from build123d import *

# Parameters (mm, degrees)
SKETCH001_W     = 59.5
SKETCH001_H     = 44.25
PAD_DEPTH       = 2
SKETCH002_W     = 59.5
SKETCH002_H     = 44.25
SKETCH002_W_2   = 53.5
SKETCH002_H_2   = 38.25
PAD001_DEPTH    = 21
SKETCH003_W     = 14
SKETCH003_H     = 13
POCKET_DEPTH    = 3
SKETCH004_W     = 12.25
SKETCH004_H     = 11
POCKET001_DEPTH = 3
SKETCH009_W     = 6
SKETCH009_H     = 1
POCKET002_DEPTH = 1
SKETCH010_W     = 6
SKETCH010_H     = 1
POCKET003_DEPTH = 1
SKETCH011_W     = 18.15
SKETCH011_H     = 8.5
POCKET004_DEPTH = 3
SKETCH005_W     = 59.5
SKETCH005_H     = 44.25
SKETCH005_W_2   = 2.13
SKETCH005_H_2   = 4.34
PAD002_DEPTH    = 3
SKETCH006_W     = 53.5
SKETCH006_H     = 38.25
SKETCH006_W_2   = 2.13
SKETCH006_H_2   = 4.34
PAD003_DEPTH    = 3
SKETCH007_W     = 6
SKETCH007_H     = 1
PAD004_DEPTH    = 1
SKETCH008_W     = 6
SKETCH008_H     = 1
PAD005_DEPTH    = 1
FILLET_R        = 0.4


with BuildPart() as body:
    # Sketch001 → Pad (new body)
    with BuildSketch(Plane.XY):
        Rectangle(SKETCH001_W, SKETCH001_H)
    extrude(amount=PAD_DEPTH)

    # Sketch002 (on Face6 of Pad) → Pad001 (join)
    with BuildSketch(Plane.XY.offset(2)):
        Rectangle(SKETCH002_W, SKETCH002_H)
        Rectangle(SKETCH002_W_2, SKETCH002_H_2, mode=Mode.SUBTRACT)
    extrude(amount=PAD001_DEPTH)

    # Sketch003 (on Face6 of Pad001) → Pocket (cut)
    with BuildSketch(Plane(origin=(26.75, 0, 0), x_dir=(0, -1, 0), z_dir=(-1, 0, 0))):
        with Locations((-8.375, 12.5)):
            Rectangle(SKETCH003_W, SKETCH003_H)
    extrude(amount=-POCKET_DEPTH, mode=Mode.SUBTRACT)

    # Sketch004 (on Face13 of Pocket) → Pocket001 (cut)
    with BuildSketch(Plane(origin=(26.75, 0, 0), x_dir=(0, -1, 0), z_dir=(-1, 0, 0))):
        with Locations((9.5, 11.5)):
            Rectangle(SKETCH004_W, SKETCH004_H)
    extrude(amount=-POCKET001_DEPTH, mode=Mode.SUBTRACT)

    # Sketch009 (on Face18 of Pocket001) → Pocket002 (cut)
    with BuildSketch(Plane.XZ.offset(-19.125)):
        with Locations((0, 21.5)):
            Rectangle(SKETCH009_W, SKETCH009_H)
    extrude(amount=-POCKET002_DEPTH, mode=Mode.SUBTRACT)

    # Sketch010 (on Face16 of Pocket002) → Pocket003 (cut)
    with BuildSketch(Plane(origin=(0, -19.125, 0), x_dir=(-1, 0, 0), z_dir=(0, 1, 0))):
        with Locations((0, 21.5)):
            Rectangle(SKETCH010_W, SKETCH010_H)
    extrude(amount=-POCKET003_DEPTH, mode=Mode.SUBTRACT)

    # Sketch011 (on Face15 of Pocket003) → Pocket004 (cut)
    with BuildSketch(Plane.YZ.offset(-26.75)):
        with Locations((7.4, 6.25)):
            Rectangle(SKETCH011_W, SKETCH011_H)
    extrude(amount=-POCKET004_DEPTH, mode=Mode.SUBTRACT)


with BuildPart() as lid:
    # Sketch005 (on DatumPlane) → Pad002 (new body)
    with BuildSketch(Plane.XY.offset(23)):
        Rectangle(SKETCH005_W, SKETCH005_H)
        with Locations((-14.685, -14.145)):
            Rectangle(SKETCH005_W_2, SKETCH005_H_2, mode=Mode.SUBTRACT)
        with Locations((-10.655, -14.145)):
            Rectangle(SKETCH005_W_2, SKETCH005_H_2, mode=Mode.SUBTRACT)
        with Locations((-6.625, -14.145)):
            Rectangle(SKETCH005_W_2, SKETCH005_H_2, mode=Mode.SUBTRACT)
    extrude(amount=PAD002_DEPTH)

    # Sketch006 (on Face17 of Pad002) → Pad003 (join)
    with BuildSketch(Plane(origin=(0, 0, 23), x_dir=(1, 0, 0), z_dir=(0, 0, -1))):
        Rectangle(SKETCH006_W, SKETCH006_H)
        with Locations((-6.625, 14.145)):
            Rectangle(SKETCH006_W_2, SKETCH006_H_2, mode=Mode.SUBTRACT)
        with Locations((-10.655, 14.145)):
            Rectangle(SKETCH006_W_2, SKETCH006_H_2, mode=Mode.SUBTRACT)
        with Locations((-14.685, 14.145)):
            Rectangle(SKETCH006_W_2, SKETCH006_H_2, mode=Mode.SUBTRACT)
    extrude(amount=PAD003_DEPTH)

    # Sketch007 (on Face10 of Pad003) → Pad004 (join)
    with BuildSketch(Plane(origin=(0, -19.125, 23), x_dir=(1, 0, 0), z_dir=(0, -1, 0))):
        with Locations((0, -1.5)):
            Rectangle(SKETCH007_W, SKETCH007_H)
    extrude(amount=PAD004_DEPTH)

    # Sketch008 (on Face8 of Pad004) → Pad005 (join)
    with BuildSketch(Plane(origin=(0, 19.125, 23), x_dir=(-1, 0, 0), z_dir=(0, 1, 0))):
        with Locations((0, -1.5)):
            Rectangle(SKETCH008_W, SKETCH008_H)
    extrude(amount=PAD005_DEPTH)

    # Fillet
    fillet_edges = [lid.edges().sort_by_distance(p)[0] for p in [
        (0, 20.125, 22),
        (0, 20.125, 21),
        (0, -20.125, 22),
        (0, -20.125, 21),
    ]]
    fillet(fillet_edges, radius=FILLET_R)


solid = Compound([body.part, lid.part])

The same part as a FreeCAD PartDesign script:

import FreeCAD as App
import Part
import Sketcher
Q = App.Units.Quantity


def edges_at(feature, points):
    """Names of the edges that pass closest to the given points."""
    edges = feature.Shape.Edges
    near = lambda p: min(range(len(edges)), key=lambda i: edges[i].distToShape(Part.Vertex(*p))[0])
    return sorted({f"Edge{near(p) + 1}" for p in points})


def add_polygon(sketch, points):
    """Adds a closed chain of lines whose ends are joined by coincident constraints."""
    first, n = sketch.GeometryCount, len(points)
    for a, b in zip(points, points[1:] + points[:1]):
        sketch.addGeometry(Part.LineSegment(App.Vector(*a, 0), App.Vector(*b, 0)), False)
    for i in range(n):
        sketch.addConstraint(Sketcher.Constraint("Coincident", first + i, 2, first + (i + 1) % n, 1))

doc = App.newDocument("Part")
body = doc.addObject("PartDesign::Body", "Body")

# Sketch on XY plane
sketch1 = doc.addObject("Sketcher::SketchObject", "Sketch")
body.addObject(sketch1)
sketch1.AttachmentSupport = (doc.XY_Plane, [""])
sketch1.MapMode = "FlatFace"
add_polygon(sketch1, [(-30, 22), (-30, -22), (30, -22), (30, 22)])  # lines 0-3
sketch1.addConstraint([
    Sketcher.Constraint("Vertical", 0),
    Sketcher.Constraint("Horizontal", 1),
    Sketcher.Constraint("Vertical", 2),
    Sketcher.Constraint("Horizontal", 3),
    Sketcher.Constraint("Symmetric", 0, 2, 2, 2, -1, 1),
    Sketcher.Constraint("DistanceX", 1, 1, 1, 2, Q("59.5 mm")),
    Sketcher.Constraint("DistanceY", 0, 2, 0, 1, Q("44.25 mm")),
])
pad1 = doc.addObject("PartDesign::Pad", "Pad")
body.addObject(pad1)
pad1.Profile = sketch1
pad1.Length = 2

# Sketch on XY plane
sketch2 = doc.addObject("Sketcher::SketchObject", "Sketch001")
body.addObject(sketch2)
sketch2.AttachmentSupport = (doc.XY_Plane, [""])
sketch2.MapMode = "FlatFace"
sketch2.AttachmentOffset = App.Placement(App.Vector(0, 0, 2), App.Rotation())
add_polygon(sketch2, [(-30, 22), (-30, -22), (30, -22), (30, 22)])  # lines 0-3
add_polygon(sketch2, [(27, -19), (-27, -19), (-27, 19), (27, 19)])  # lines 4-7
sketch2.addConstraint([
    Sketcher.Constraint("Vertical", 0),
    Sketcher.Constraint("Horizontal", 1),
    Sketcher.Constraint("Vertical", 2),
    Sketcher.Constraint("Horizontal", 3),
    Sketcher.Constraint("Horizontal", 4),
    Sketcher.Constraint("Vertical", 5),
    Sketcher.Constraint("Horizontal", 6),
    Sketcher.Constraint("Vertical", 7),
    Sketcher.Constraint("Symmetric", 0, 2, 2, 2, -1, 1),
    Sketcher.Constraint("Symmetric", 4, 2, 6, 2, -1, 1),
    Sketcher.Constraint("DistanceX", 1, 1, 1, 2, Q("59.5 mm")),
    Sketcher.Constraint("DistanceX", 4, 2, 4, 1, Q("53.5 mm")),
    Sketcher.Constraint("DistanceY", 0, 2, 4, 2, Q("3 mm")),
    Sketcher.Constraint("DistanceY", 0, 2, 0, 1, Q("44.25 mm")),
])
pad2 = doc.addObject("PartDesign::Pad", "Pad001")
body.addObject(pad2)
pad2.Profile = sketch2
pad2.Length = 21

# Sketch on YZ plane
sketch3 = doc.addObject("Sketcher::SketchObject", "Sketch002")
body.addObject(sketch3)
sketch3.AttachmentSupport = (doc.YZ_Plane, [""])
sketch3.MapMode = "FlatFace"
sketch3.AttachmentOffset = App.Placement(App.Vector(0, 0, 26.75), App.Rotation())
add_polygon(sketch3, [(15, 19), (15, 6), (1, 6), (1, 19)])  # lines 0-3
sketch3.addConstraint([
    Sketcher.Constraint("Vertical", 0),
    Sketcher.Constraint("Horizontal", 1),
    Sketcher.Constraint("Vertical", 2),
    Sketcher.Constraint("Horizontal", 3),
    Sketcher.Constraint("DistanceX", 1, 2, 1, 1, Q("14 mm")),
    Sketcher.Constraint("DistanceY", 0, 2, 0, 1, Q("13 mm")),
    Sketcher.Constraint("DistanceY", -1, 1, 0, 2, Q("6 mm")),
    Sketcher.Constraint("DistanceX", -1, 1, 0, 2, Q("15.375 mm")),
])
pocket1 = doc.addObject("PartDesign::Pocket", "Pocket")
body.addObject(pocket1)
pocket1.Profile = sketch3
pocket1.Length = 3
pocket1.Reversed = True

# Sketch on YZ plane
sketch4 = doc.addObject("Sketcher::SketchObject", "Sketch003")
body.addObject(sketch4)
sketch4.AttachmentSupport = (doc.YZ_Plane, [""])
sketch4.MapMode = "FlatFace"
sketch4.AttachmentOffset = App.Placement(App.Vector(0, 0, 26.75), App.Rotation())
add_polygon(sketch4, [(-3, 17), (-3, 6), (-16, 6), (-16, 17)])  # lines 0-3
sketch4.addConstraint([
    Sketcher.Constraint("Vertical", 0),
    Sketcher.Constraint("Horizontal", 1),
    Sketcher.Constraint("Vertical", 2),
    Sketcher.Constraint("Horizontal", 3),
    Sketcher.Constraint("DistanceY", 0, 2, 0, 1, Q("11 mm")),
    Sketcher.Constraint("DistanceY", -1, 1, 0, 2, Q("6 mm")),
    Sketcher.Constraint("DistanceX", 1, 2, 1, 1, Q("12.25 mm")),
    Sketcher.Constraint("DistanceX", 0, 2, -1, 1, Q("3.375 mm")),
])
pocket2 = doc.addObject("PartDesign::Pocket", "Pocket001")
body.addObject(pocket2)
pocket2.Profile = sketch4
pocket2.Length = 3
pocket2.Reversed = True

# Sketch on XZ plane
sketch5 = doc.addObject("Sketcher::SketchObject", "Sketch004")
body.addObject(sketch5)
sketch5.AttachmentSupport = (doc.XZ_Plane, [""])
sketch5.MapMode = "FlatFace"
sketch5.AttachmentOffset = App.Placement(App.Vector(0, 0, -19.125), App.Rotation())
add_polygon(sketch5, [(-3, 22), (-3, 21), (3, 21), (3, 22)])  # lines 0-3
sketch5.addConstraint([
    Sketcher.Constraint("Vertical", 0),
    Sketcher.Constraint("Horizontal", 1),
    Sketcher.Constraint("Vertical", 2),
    Sketcher.Constraint("Horizontal", 3),
    Sketcher.Constraint("DistanceX", 1, 1, 1, 2, Q("6 mm")),
    Sketcher.Constraint("DistanceY", 0, 2, 0, 1, Q("1 mm")),
    Sketcher.Constraint("DistanceX", 0, 2, -1, 1, Q("3 mm")),
    Sketcher.Constraint("DistanceY", -1, 1, 0, 2, Q("21 mm")),
])
pocket3 = doc.addObject("PartDesign::Pocket", "Pocket002")
body.addObject(pocket3)
pocket3.Profile = sketch5
pocket3.Length = 1

# Sketch on XZ plane
sketch6 = doc.addObject("Sketcher::SketchObject", "Sketch005")
body.addObject(sketch6)
sketch6.AttachmentSupport = (doc.XZ_Plane, [""])
sketch6.MapMode = "FlatFace"
sketch6.AttachmentOffset = App.Placement(App.Vector(0, 0, 19.125), App.Rotation())
add_polygon(sketch6, [(3, 22), (3, 21), (-3, 21), (-3, 22)])  # lines 0-3
sketch6.addConstraint([
    Sketcher.Constraint("Vertical", 0),
    Sketcher.Constraint("Horizontal", 1),
    Sketcher.Constraint("Vertical", 2),
    Sketcher.Constraint("Horizontal", 3),
    Sketcher.Constraint("DistanceX", 1, 2, 1, 1, Q("6 mm")),
    Sketcher.Constraint("DistanceY", 0, 2, 0, 1, Q("1 mm")),
    Sketcher.Constraint("DistanceX", -1, 1, 0, 2, Q("3 mm")),
    Sketcher.Constraint("DistanceY", -1, 1, 0, 2, Q("21 mm")),
])
pocket4 = doc.addObject("PartDesign::Pocket", "Pocket003")
body.addObject(pocket4)
pocket4.Profile = sketch6
pocket4.Length = 1
pocket4.Reversed = True

# Sketch on YZ plane
sketch7 = doc.addObject("Sketcher::SketchObject", "Sketch006")
body.addObject(sketch7)
sketch7.AttachmentSupport = (doc.YZ_Plane, [""])
sketch7.MapMode = "FlatFace"
sketch7.AttachmentOffset = App.Placement(App.Vector(0, 0, -26.75), App.Rotation())
add_polygon(sketch7, [(-2, 10), (-2, 2), (16, 2), (16, 10)])  # lines 0-3
sketch7.addConstraint([
    Sketcher.Constraint("Vertical", 0),
    Sketcher.Constraint("Horizontal", 1),
    Sketcher.Constraint("Vertical", 2),
    Sketcher.Constraint("Horizontal", 3),
    Sketcher.Constraint("DistanceY", 0, 2, 0, 1, Q("8.5 mm")),
    Sketcher.Constraint("DistanceY", -1, 1, 0, 2, Q("2 mm")),
    Sketcher.Constraint("DistanceX", 1, 1, 1, 2, Q("18.15 mm")),
    Sketcher.Constraint("DistanceX", 0, 2, -1, 1, Q("1.675 mm")),
])
pocket5 = doc.addObject("PartDesign::Pocket", "Pocket004")
body.addObject(pocket5)
pocket5.Profile = sketch7
pocket5.Length = 3
body2 = doc.addObject("PartDesign::Body", "Body001")

# Sketch on XY plane
sketch8 = doc.addObject("Sketcher::SketchObject", "Sketch007")
body2.addObject(sketch8)
sketch8.AttachmentSupport = (doc.getObject("XY_Plane001"), [""])
sketch8.MapMode = "FlatFace"
sketch8.AttachmentOffset = App.Placement(App.Vector(0, 0, 23), App.Rotation())
add_polygon(sketch8, [(-29.8, 22.1), (-29.8, -22.1), (29.8, -22.1), (29.8, 22.1)])  # lines 0-3
add_polygon(sketch8, [(-13.6, -16.3), (-15.8, -16.3), (-15.8, -12), (-13.6, -12)])  # lines 4-7
add_polygon(sketch8, [(-9.6, -16.3), (-11.7, -16.3), (-11.7, -12), (-9.6, -12)])  # lines 8-11
add_polygon(sketch8, [(-5.6, -16.3), (-7.7, -16.3), (-7.7, -12), (-5.6, -12)])  # lines 12-15
sketch8.addConstraint([
    Sketcher.Constraint("Vertical", 0),
    Sketcher.Constraint("Horizontal", 1),
    Sketcher.Constraint("Vertical", 2),
    Sketcher.Constraint("Horizontal", 3),
    Sketcher.Constraint("Horizontal", 4),
    Sketcher.Constraint("Vertical", 5),
    Sketcher.Constraint("Horizontal", 6),
    Sketcher.Constraint("Vertical", 7),
    Sketcher.Constraint("Horizontal", 8),
    Sketcher.Constraint("Vertical", 9),
    Sketcher.Constraint("Horizontal", 10),
    Sketcher.Constraint("Vertical", 11),
    Sketcher.Constraint("Horizontal", 12),
    Sketcher.Constraint("Vertical", 13),
    Sketcher.Constraint("Horizontal", 14),
    Sketcher.Constraint("Vertical", 15),
    Sketcher.Constraint("Symmetric", 0, 2, 2, 2, -1, 1),
    Sketcher.Constraint("Horizontal", 7, 2, 8, 2),
    Sketcher.Constraint("Horizontal", 6, 2, 9, 2),
    Sketcher.Constraint("Horizontal", 11, 2, 12, 2),
    Sketcher.Constraint("Horizontal", 10, 2, 13, 2),
    Sketcher.Constraint("Equal", 6, 8),
    Sketcher.Constraint("Equal", 10, 12),
    Sketcher.Constraint("DistanceX", 1, 1, 1, 2, Q("59.5 mm")),
    Sketcher.Constraint("DistanceX", 0, 2, 4, 2, Q("14 mm")),
    Sketcher.Constraint("DistanceX", 4, 2, 4, 1, Q("2.13 mm")),
    Sketcher.Constraint("DistanceY", 0, 2, 0, 1, Q("44.25 mm")),
    Sketcher.Constraint("DistanceY", 5, 1, 5, 2, Q("4.34 mm")),
    Sketcher.Constraint("DistanceY", 5, 2, 3, 2, Q("34.1 mm")),
    Sketcher.Constraint("DistanceX", 7, 2, 8, 2, Q("1.9 mm")),
    Sketcher.Constraint("DistanceX", 11, 2, 12, 2, Q("1.9 mm")),
])
pad3 = doc.addObject("PartDesign::Pad", "Pad002")
body2.addObject(pad3)
pad3.Profile = sketch8
pad3.Length = 3

# Sketch on XY plane
sketch9 = doc.addObject("Sketcher::SketchObject", "Sketch008")
body2.addObject(sketch9)
sketch9.AttachmentSupport = (doc.getObject("XY_Plane001"), [""])
sketch9.MapMode = "FlatFace"
sketch9.AttachmentOffset = App.Placement(App.Vector(0, 0, 23), App.Rotation())
add_polygon(sketch9, [(-26.8, -19.1), (-26.8, 19.1), (26.8, 19.1), (26.8, -19.1)])  # lines 0-3
add_polygon(sketch9, [(-13.6, -12), (-15.8, -12), (-15.8, -16.3), (-13.6, -16.3)])  # lines 4-7
add_polygon(sketch9, [(-9.6, -12), (-11.7, -12), (-11.7, -16.3), (-9.6, -16.3)])  # lines 8-11
add_polygon(sketch9, [(-5.6, -12), (-7.7, -12), (-7.7, -16.3), (-5.6, -16.3)])  # lines 12-15
sketch9.addConstraint([
    Sketcher.Constraint("Vertical", 0),
    Sketcher.Constraint("Horizontal", 1),
    Sketcher.Constraint("Vertical", 2),
    Sketcher.Constraint("Horizontal", 3),
    Sketcher.Constraint("Horizontal", 4),
    Sketcher.Constraint("Vertical", 5),
    Sketcher.Constraint("Horizontal", 6),
    Sketcher.Constraint("Vertical", 7),
    Sketcher.Constraint("Horizontal", 8),
    Sketcher.Constraint("Vertical", 9),
    Sketcher.Constraint("Horizontal", 10),
    Sketcher.Constraint("Vertical", 11),
    Sketcher.Constraint("Horizontal", 12),
    Sketcher.Constraint("Vertical", 13),
    Sketcher.Constraint("Horizontal", 14),
    Sketcher.Constraint("Vertical", 15),
    Sketcher.Constraint("Symmetric", 0, 2, 2, 2, -1, 1),
    Sketcher.Constraint("Horizontal", 7, 2, 8, 2),
    Sketcher.Constraint("Horizontal", 6, 2, 9, 2),
    Sketcher.Constraint("Horizontal", 11, 2, 12, 2),
    Sketcher.Constraint("Horizontal", 10, 2, 13, 2),
    Sketcher.Constraint("Equal", 6, 8),
    Sketcher.Constraint("Equal", 10, 12),
    Sketcher.Constraint("DistanceX", 1, 1, 1, 2, Q("53.5 mm")),
    Sketcher.Constraint("DistanceX", 3, 2, 4, 2, Q("11 mm")),
    Sketcher.Constraint("DistanceX", 4, 2, 4, 1, Q("2.13 mm")),
    Sketcher.Constraint("DistanceY", 0, 1, 0, 2, Q("38.25 mm")),
    Sketcher.Constraint("DistanceY", 5, 2, 5, 1, Q("4.34 mm")),
    Sketcher.Constraint("DistanceY", 4, 2, 0, 2, Q("31.1 mm")),
    Sketcher.Constraint("DistanceX", 7, 2, 8, 2, Q("1.9 mm")),
    Sketcher.Constraint("DistanceX", 11, 2, 12, 2, Q("1.9 mm")),
])
pad4 = doc.addObject("PartDesign::Pad", "Pad003")
body2.addObject(pad4)
pad4.Profile = sketch9
pad4.Length = 3
pad4.Reversed = True

# Sketch on XZ plane
sketch10 = doc.addObject("Sketcher::SketchObject", "Sketch009")
body2.addObject(sketch10)
sketch10.AttachmentSupport = (doc.getObject("XZ_Plane001"), [""])
sketch10.MapMode = "FlatFace"
sketch10.AttachmentOffset = App.Placement(App.Vector(0, 0, 19.125), App.Rotation())
add_polygon(sketch10, [(-3, 22), (-3, 21), (3, 21), (3, 22)])  # lines 0-3
sketch10.addConstraint([
    Sketcher.Constraint("Vertical", 0),
    Sketcher.Constraint("Horizontal", 1),
    Sketcher.Constraint("Vertical", 2),
    Sketcher.Constraint("Horizontal", 3),
    Sketcher.Constraint("DistanceX", 1, 1, 1, 2, Q("6 mm")),
    Sketcher.Constraint("DistanceY", 0, 2, 0, 1, Q("1 mm")),
    Sketcher.Constraint("DistanceX", 0, 2, -1, 1, Q("3 mm")),
    Sketcher.Constraint("DistanceY", -1, 1, 0, 2, Q("21 mm")),
])
pad5 = doc.addObject("PartDesign::Pad", "Pad004")
body2.addObject(pad5)
pad5.Profile = sketch10
pad5.Length = 1

# Sketch on XZ plane
sketch11 = doc.addObject("Sketcher::SketchObject", "Sketch010")
body2.addObject(sketch11)
sketch11.AttachmentSupport = (doc.getObject("XZ_Plane001"), [""])
sketch11.MapMode = "FlatFace"
sketch11.AttachmentOffset = App.Placement(App.Vector(0, 0, -19.125), App.Rotation())
add_polygon(sketch11, [(3, 22), (3, 21), (-3, 21), (-3, 22)])  # lines 0-3
sketch11.addConstraint([
    Sketcher.Constraint("Vertical", 0),
    Sketcher.Constraint("Horizontal", 1),
    Sketcher.Constraint("Vertical", 2),
    Sketcher.Constraint("Horizontal", 3),
    Sketcher.Constraint("DistanceX", 1, 2, 1, 1, Q("6 mm")),
    Sketcher.Constraint("DistanceY", 0, 2, 0, 1, Q("1 mm")),
    Sketcher.Constraint("DistanceX", -1, 1, 0, 2, Q("3 mm")),
    Sketcher.Constraint("DistanceY", -1, 1, 0, 2, Q("21 mm")),
])
pad6 = doc.addObject("PartDesign::Pad", "Pad005")
body2.addObject(pad6)
pad6.Profile = sketch11
pad6.Length = 1
pad6.Reversed = True
doc.recompute()

fillet = doc.addObject("PartDesign::Fillet", "Fillet")
body2.addObject(fillet)
fillet.Base = (pad6, edges_at(pad6, [
    (0, 20.125, 22),
    (0, 20.125, 21),
    (0, -20.125, 22),
    (0, -20.125, 21),
]))
fillet.Radius = 0.4

doc.recompute()
